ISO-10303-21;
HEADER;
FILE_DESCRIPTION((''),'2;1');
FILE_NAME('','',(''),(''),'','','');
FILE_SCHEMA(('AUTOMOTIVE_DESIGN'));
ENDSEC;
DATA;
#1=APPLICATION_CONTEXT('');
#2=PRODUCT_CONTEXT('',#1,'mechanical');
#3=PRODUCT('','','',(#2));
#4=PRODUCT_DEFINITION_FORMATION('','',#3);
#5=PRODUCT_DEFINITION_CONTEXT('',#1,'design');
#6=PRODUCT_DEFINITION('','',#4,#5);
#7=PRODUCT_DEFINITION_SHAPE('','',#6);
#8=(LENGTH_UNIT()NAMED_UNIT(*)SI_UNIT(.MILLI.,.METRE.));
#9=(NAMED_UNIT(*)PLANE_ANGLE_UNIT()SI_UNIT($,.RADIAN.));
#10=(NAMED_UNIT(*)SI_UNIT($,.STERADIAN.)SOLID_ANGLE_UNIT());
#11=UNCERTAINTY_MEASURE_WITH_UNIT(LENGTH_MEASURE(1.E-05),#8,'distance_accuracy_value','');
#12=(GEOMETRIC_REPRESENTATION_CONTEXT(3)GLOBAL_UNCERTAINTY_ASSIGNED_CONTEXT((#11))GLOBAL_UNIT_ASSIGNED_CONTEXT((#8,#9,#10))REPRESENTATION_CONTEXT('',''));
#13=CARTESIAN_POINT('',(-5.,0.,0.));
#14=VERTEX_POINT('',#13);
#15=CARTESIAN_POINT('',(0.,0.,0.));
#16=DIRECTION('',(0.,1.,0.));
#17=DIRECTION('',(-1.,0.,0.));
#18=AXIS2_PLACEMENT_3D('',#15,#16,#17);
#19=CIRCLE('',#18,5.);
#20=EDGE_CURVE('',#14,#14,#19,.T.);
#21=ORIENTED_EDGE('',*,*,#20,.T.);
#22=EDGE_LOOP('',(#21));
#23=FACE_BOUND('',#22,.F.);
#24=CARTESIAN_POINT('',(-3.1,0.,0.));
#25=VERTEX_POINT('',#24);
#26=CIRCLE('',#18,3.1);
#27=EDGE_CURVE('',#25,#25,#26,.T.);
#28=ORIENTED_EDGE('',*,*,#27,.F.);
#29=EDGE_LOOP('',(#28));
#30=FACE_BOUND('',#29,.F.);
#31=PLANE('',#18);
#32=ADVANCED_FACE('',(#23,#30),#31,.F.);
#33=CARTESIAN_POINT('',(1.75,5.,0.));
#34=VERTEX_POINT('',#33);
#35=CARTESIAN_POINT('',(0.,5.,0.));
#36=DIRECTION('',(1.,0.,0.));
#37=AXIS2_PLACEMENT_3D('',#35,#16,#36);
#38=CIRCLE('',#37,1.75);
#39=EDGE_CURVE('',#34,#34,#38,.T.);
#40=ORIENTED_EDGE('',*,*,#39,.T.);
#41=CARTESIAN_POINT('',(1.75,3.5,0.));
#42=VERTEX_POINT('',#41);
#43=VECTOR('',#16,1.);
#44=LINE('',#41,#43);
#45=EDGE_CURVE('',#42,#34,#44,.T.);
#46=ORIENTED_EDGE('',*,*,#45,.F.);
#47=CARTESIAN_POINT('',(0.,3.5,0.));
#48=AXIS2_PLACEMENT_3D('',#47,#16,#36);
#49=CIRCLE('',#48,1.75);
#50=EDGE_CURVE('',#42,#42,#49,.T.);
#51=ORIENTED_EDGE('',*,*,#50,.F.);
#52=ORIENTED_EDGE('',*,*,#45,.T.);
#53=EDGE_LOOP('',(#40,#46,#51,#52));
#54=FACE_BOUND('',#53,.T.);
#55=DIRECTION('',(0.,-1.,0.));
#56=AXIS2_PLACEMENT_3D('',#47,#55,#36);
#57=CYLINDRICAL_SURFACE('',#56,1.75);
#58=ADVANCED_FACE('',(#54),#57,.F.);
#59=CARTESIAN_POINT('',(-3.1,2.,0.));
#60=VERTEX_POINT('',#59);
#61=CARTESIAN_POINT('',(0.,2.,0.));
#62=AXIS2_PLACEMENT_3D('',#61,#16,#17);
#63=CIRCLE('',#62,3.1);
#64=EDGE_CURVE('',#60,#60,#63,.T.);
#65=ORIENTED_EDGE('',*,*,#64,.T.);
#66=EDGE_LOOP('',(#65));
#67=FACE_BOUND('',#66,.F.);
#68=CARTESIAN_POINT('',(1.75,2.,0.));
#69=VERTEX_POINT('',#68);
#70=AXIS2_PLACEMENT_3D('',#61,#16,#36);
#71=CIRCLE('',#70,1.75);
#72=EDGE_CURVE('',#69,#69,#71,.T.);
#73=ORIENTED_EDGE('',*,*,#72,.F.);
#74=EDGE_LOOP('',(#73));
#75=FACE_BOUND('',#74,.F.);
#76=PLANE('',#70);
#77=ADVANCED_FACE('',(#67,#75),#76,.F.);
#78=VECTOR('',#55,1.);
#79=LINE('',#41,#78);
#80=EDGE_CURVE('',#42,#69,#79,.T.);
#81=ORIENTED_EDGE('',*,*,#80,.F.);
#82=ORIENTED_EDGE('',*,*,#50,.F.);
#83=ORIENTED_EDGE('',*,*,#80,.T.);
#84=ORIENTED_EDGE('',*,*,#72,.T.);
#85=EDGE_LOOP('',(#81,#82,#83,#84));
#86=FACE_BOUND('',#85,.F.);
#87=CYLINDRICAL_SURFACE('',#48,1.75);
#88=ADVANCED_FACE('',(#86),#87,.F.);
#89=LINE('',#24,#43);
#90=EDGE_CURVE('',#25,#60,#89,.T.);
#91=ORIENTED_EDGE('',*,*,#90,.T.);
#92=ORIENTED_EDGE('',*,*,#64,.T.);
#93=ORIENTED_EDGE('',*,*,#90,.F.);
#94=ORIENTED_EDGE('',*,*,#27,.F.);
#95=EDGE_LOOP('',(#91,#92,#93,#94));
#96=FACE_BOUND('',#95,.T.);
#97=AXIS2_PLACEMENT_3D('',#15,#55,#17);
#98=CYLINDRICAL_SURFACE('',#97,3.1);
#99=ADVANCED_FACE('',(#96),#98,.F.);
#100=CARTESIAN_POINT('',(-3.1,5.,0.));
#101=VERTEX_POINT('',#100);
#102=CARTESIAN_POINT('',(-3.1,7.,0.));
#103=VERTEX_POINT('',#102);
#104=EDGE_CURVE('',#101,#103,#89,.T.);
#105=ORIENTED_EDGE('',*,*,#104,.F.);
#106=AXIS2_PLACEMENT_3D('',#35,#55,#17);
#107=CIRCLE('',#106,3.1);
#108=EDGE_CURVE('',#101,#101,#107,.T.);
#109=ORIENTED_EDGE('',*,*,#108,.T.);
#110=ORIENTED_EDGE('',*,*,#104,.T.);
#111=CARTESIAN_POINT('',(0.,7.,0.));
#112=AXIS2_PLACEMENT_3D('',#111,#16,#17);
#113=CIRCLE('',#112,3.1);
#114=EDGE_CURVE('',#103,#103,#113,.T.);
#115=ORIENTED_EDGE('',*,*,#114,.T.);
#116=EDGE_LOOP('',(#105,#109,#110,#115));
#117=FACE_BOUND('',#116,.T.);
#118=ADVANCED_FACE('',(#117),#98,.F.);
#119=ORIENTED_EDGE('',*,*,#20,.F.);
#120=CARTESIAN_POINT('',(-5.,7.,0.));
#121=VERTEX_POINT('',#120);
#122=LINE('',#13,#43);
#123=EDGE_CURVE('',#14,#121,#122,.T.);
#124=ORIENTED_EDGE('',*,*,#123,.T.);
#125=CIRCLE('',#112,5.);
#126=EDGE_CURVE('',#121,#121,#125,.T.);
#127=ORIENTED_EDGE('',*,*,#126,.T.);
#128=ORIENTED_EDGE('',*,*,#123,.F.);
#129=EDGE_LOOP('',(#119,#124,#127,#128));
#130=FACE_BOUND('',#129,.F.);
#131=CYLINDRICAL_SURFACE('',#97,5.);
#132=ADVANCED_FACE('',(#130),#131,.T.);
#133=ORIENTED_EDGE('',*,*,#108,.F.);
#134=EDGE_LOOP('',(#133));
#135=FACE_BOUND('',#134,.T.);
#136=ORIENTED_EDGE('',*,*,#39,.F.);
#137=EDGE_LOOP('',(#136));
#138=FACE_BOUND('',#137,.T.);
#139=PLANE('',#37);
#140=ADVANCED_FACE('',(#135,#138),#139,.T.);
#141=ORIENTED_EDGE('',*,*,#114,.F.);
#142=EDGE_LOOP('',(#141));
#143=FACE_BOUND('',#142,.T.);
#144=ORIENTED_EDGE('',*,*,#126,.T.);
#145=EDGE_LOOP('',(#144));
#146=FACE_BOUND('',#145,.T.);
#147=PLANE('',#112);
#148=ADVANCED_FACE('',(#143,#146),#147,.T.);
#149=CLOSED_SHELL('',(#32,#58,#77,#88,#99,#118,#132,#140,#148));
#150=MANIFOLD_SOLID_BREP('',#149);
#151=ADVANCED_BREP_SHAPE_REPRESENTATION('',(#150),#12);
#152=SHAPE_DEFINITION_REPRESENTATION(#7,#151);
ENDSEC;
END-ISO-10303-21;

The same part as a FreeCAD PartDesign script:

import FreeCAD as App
import Part
import Sketcher

doc = App.newDocument("Part")
body = doc.addObject("PartDesign::Body", "Body")

# Sketch on XZ plane
sketch1 = body.newObject("Sketcher::SketchObject", "Sketch")
sketch1.AttachmentSupport = (doc.getObject("XZ_Plane"), [""])
sketch1.MapMode = "FlatFace"
sketch1.addGeometry(Part.Circle(App.Vector(0, 0, 0), App.Vector(0, 0, 1), 5), False)
sketch1.addGeometry(Part.Circle(App.Vector(0, 0, 0), App.Vector(0, 0, 1), 3.1), False)
sketch1.addConstraint(Sketcher.Constraint("Coincident", 0, 3, -1, 1))
sketch1.addConstraint(Sketcher.Constraint("Coincident", 1, 3, -1, 1))
sketch1.addConstraint(Sketcher.Constraint("Diameter", 0, 10.0))
sketch1.addConstraint(Sketcher.Constraint("Diameter", 1, 6.2))
pad1 = body.newObject("PartDesign::Pad", "Pad")
pad1.Profile = sketch1
pad1.Length = 7
pad1.Reversed = True

# Sketch on XZ plane
sketch2 = body.newObject("Sketcher::SketchObject", "Sketch001")
sketch2.AttachmentSupport = (doc.getObject("XZ_Plane"), [""])
sketch2.MapMode = "FlatFace"
sketch2.AttachmentOffset = App.Placement(App.Vector(0, 0, -3.5), App.Rotation())
sketch2.addGeometry(Part.Circle(App.Vector(0, 0, 0), App.Vector(0, 0, 1), 3.1), False)
sketch2.addGeometry(Part.Circle(App.Vector(0, 0, 0), App.Vector(0, 0, 1), 1.8), False)
sketch2.addConstraint(Sketcher.Constraint("Coincident", 0, 3, -1, 1))
sketch2.addConstraint(Sketcher.Constraint("Coincident", 1, 3, -1, 1))
sketch2.addConstraint(Sketcher.Constraint("Diameter", 1, 3.5))
sketch2.addConstraint(Sketcher.Constraint("Diameter", 0, 6.2))
pad2 = body.newObject("PartDesign::Pad", "Pad001")
pad2.Profile = sketch2
pad2.Length = 3
pad2.Midplane = True

doc.recompute()
